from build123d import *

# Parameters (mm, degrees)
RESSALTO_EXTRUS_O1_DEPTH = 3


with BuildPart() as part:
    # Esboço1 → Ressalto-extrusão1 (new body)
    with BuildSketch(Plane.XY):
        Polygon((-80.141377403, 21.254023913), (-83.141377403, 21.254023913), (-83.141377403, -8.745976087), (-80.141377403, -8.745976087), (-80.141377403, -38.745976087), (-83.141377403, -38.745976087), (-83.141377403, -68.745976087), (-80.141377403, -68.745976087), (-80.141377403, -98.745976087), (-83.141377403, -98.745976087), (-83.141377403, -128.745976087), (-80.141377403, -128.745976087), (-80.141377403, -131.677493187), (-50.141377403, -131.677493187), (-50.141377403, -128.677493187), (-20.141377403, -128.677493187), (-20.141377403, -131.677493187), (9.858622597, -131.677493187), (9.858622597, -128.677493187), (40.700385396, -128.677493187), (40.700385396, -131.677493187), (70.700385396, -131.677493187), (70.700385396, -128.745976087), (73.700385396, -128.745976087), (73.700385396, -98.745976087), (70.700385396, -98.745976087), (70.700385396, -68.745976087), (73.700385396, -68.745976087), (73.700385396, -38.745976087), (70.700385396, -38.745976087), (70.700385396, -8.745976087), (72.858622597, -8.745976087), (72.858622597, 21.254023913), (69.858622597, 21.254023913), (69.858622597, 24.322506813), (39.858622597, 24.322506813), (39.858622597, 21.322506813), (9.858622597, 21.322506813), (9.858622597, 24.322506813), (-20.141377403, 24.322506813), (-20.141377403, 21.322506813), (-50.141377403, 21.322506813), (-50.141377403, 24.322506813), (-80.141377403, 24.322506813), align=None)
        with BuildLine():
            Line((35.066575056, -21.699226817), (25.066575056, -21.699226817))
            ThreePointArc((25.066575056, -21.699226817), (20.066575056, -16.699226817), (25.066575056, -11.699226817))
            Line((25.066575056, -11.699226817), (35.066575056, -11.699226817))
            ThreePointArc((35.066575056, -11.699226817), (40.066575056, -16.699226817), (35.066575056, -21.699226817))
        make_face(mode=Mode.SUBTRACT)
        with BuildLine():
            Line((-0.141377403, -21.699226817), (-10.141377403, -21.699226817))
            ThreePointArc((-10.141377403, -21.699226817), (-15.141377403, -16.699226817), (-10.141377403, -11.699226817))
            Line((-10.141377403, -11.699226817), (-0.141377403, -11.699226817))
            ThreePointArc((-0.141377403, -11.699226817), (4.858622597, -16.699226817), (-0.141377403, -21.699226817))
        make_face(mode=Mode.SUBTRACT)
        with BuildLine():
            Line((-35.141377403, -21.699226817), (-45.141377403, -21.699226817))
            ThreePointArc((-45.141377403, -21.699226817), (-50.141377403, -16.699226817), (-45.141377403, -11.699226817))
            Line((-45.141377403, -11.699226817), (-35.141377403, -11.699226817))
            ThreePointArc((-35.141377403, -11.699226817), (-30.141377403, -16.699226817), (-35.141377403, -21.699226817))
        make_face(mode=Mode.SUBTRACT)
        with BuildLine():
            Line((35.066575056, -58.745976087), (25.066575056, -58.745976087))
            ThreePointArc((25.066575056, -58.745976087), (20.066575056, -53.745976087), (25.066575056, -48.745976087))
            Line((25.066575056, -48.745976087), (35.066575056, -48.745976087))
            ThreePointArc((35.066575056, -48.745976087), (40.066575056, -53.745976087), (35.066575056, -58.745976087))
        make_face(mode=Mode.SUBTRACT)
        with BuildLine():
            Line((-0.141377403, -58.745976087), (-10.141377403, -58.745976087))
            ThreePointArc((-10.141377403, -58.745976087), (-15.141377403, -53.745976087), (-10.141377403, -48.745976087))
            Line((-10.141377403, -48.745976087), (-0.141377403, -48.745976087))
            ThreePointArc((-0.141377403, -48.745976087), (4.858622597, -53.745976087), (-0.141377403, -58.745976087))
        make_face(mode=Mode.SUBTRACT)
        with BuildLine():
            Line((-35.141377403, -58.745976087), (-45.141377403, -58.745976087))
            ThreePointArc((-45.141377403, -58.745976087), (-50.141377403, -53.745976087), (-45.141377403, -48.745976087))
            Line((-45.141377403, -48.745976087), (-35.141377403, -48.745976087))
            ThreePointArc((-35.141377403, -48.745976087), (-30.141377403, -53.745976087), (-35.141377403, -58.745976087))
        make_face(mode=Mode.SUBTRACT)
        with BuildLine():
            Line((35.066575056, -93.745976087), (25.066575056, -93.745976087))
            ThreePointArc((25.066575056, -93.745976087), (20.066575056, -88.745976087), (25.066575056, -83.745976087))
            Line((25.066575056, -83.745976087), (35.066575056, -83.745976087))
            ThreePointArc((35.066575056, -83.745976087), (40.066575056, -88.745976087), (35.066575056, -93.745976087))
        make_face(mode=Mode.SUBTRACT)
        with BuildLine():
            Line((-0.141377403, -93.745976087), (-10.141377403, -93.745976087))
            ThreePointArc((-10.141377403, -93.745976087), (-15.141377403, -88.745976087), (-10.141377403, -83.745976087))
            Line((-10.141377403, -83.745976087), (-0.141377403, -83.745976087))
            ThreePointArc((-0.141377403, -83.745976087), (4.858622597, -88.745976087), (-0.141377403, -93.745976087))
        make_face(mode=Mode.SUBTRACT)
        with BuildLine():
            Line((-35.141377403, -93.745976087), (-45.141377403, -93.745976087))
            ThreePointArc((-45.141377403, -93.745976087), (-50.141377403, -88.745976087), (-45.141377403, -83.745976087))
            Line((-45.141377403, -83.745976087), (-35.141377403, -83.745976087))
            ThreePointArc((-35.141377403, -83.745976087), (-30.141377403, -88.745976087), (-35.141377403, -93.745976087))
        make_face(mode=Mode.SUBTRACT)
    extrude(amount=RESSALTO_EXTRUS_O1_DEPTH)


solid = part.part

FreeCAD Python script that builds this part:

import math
import FreeCAD as App
import Part
import Sketcher
from FreeCAD import Vector
Q = App.Units.Quantity


def add_polygon(sketch, points):
    """Adds a closed chain of lines whose ends are joined by coincident constraints."""
    first, n = sketch.GeometryCount, len(points)
    for a, b in zip(points, points[1:] + points[:1]):
        sketch.addGeometry(Part.LineSegment(App.Vector(*a, 0), App.Vector(*b, 0)), False)
    for i in range(n):
        sketch.addConstraint(Sketcher.Constraint("Coincident", first + i, 2, first + (i + 1) % n, 1))

doc = App.newDocument("Part")
body = doc.addObject("PartDesign::Body", "Body")

# Sketch on XY plane
sketch1 = body.newObject("Sketcher::SketchObject", "Sketch")
sketch1.AttachmentSupport = (doc.getObject("XY_Plane"), [""])
sketch1.MapMode = "FlatFace"
add_polygon(sketch1, [(-80.1, 21.3), (-83.1, 21.3), (-83.1, -8.7), (-80.1, -8.7), (-80.1, -38.7), (-83.1, -38.7), (-83.1, -68.7), (-80.1, -68.7), (-80.1, -98.7), (-83.1, -98.7), (-83.1, -128.7), (-80.1, -128.7), (-80.1, -131.7), (-50.1, -131.7), (-50.1, -128.7), (-20.1, -128.7), (-20.1, -131.7), (9.9, -131.7), (9.9, -128.7), (40.7, -128.7), (40.7, -131.7), (70.7, -131.7), (70.7, -128.7), (73.7, -128.7), (73.7, -98.7), (70.7, -98.7), (70.7, -68.7), (73.7, -68.7), (73.7, -38.7), (70.7, -38.7), (70.7, -8.7), (72.9, -8.7), (72.9, 21.3), (69.9, 21.3), (69.9, 24.3), (39.9, 24.3), (39.9, 21.3), (9.9, 21.3), (9.9, 24.3), (-20.1, 24.3), (-20.1, 21.3), (-50.1, 21.3), (-50.1, 24.3), (-80.1, 24.3)])  # lines 0-43
sketch1.addGeometry(Part.ArcOfCircle(Part.Circle(Vector(-35.1, -88.7, 0), Vector(0, 0, 1), 5), math.radians(-90), math.radians(90)), False)  # 44
sketch1.addGeometry(Part.LineSegment(Vector(-35.1, -93.7, 0), Vector(-45.1, -93.7, 0)), False)  # 45
sketch1.addGeometry(Part.ArcOfCircle(Part.Circle(Vector(-45.1, -88.7, 0), Vector(0, 0, 1), 5), math.radians(90), math.radians(270)), False)  # 46
sketch1.addGeometry(Part.LineSegment(Vector(-45.1, -83.7, 0), Vector(-35.1, -83.7, 0)), False)  # 47
sketch1.addGeometry(Part.ArcOfCircle(Part.Circle(Vector(-0.1, -88.7, 0), Vector(0, 0, 1), 5), math.radians(-90), math.radians(90)), False)  # 48
sketch1.addGeometry(Part.LineSegment(Vector(-0.1, -93.7, 0), Vector(-10.1, -93.7, 0)), False)  # 49
sketch1.addGeometry(Part.ArcOfCircle(Part.Circle(Vector(-10.1, -88.7, 0), Vector(0, 0, 1), 5), math.radians(90), math.radians(270)), False)  # 50
sketch1.addGeometry(Part.LineSegment(Vector(-10.1, -83.7, 0), Vector(-0.1, -83.7, 0)), False)  # 51
sketch1.addGeometry(Part.ArcOfCircle(Part.Circle(Vector(-35.1, -53.7, 0), Vector(0, 0, 1), 5), math.radians(-90), math.radians(90)), False)  # 52
sketch1.addGeometry(Part.LineSegment(Vector(-35.1, -58.7, 0), Vector(-45.1, -58.7, 0)), False)  # 53
sketch1.addGeometry(Part.ArcOfCircle(Part.Circle(Vector(-45.1, -53.7, 0), Vector(0, 0, 1), 5), math.radians(90), math.radians(270)), False)  # 54
sketch1.addGeometry(Part.LineSegment(Vector(-45.1, -48.7, 0), Vector(-35.1, -48.7, 0)), False)  # 55
sketch1.addGeometry(Part.ArcOfCircle(Part.Circle(Vector(-0.1, -53.7, 0), Vector(0, 0, 1), 5), math.radians(-90), math.radians(90)), False)  # 56
sketch1.addGeometry(Part.LineSegment(Vector(-0.1, -58.7, 0), Vector(-10.1, -58.7, 0)), False)  # 57
sketch1.addGeometry(Part.ArcOfCircle(Part.Circle(Vector(-10.1, -53.7, 0), Vector(0, 0, 1), 5), math.radians(90), math.radians(270)), False)  # 58
sketch1.addGeometry(Part.LineSegment(Vector(-10.1, -48.7, 0), Vector(-0.1, -48.7, 0)), False)  # 59
sketch1.addGeometry(Part.ArcOfCircle(Part.Circle(Vector(35.1, -88.7, 0), Vector(0, 0, 1), 5), math.radians(-90), math.radians(90)), False)  # 60
sketch1.addGeometry(Part.LineSegment(Vector(35.1, -93.7, 0), Vector(25.1, -93.7, 0)), False)  # 61
sketch1.addGeometry(Part.ArcOfCircle(Part.Circle(Vector(25.1, -88.7, 0), Vector(0, 0, 1), 5), math.radians(90), math.radians(270)), False)  # 62
sketch1.addGeometry(Part.LineSegment(Vector(25.1, -83.7, 0), Vector(35.1, -83.7, 0)), False)  # 63
sketch1.addGeometry(Part.ArcOfCircle(Part.Circle(Vector(35.1, -53.7, 0), Vector(0, 0, 1), 5), math.radians(-90), math.radians(90)), False)  # 64
sketch1.addGeometry(Part.LineSegment(Vector(35.1, -58.7, 0), Vector(25.1, -58.7, 0)), False)  # 65
sketch1.addGeometry(Part.ArcOfCircle(Part.Circle(Vector(25.1, -53.7, 0), Vector(0, 0, 1), 5), math.radians(90), math.radians(270)), False)  # 66
sketch1.addGeometry(Part.LineSegment(Vector(25.1, -48.7, 0), Vector(35.1, -48.7, 0)), False)  # 67
sketch1.addGeometry(Part.ArcOfCircle(Part.Circle(Vector(-35.1, -16.7, 0), Vector(0, 0, 1), 5), math.radians(-90), math.radians(90)), False)  # 68
sketch1.addGeometry(Part.LineSegment(Vector(-35.1, -21.7, 0), Vector(-45.1, -21.7, 0)), False)  # 69
sketch1.addGeometry(Part.ArcOfCircle(Part.Circle(Vector(-45.1, -16.7, 0), Vector(0, 0, 1), 5), math.radians(90), math.radians(270)), False)  # 70
sketch1.addGeometry(Part.LineSegment(Vector(-45.1, -11.7, 0), Vector(-35.1, -11.7, 0)), False)  # 71
sketch1.addGeometry(Part.ArcOfCircle(Part.Circle(Vector(-0.1, -16.7, 0), Vector(0, 0, 1), 5), math.radians(-90), math.radians(90)), False)  # 72
sketch1.addGeometry(Part.LineSegment(Vector(-0.1, -21.7, 0), Vector(-10.1, -21.7, 0)), False)  # 73
sketch1.addGeometry(Part.ArcOfCircle(Part.Circle(Vector(-10.1, -16.7, 0), Vector(0, 0, 1), 5), math.radians(90), math.radians(270)), False)  # 74
sketch1.addGeometry(Part.LineSegment(Vector(-10.1, -11.7, 0), Vector(-0.1, -11.7, 0)), False)  # 75
sketch1.addGeometry(Part.ArcOfCircle(Part.Circle(Vector(35.1, -16.7, 0), Vector(0, 0, 1), 5), math.radians(-90), math.radians(90)), False)  # 76
sketch1.addGeometry(Part.LineSegment(Vector(35.1, -21.7, 0), Vector(25.1, -21.7, 0)), False)  # 77
sketch1.addGeometry(Part.ArcOfCircle(Part.Circle(Vector(25.1, -16.7, 0), Vector(0, 0, 1), 5), math.radians(90), math.radians(270)), False)  # 78
sketch1.addGeometry(Part.LineSegment(Vector(25.1, -11.7, 0), Vector(35.1, -11.7, 0)), False)  # 79
sketch1.addConstraint([
    Sketcher.Constraint("Tangent", 44, 1, 45, 1),
    Sketcher.Constraint("Tangent", 45, 2, 46, 2),
    Sketcher.Constraint("Tangent", 46, 1, 47, 1),
    Sketcher.Constraint("Tangent", 47, 2, 44, 2),
    Sketcher.Constraint("Tangent", 48, 1, 49, 1),
    Sketcher.Constraint("Tangent", 49, 2, 50, 2),
    Sketcher.Constraint("Tangent", 50, 1, 51, 1),
    Sketcher.Constraint("Tangent", 51, 2, 48, 2),
    Sketcher.Constraint("Tangent", 52, 1, 53, 1),
    Sketcher.Constraint("Tangent", 53, 2, 54, 2),
    Sketcher.Constraint("Tangent", 54, 1, 55, 1),
    Sketcher.Constraint("Tangent", 55, 2, 52, 2),
    Sketcher.Constraint("Tangent", 56, 1, 57, 1),
    Sketcher.Constraint("Tangent", 57, 2, 58, 2),
    Sketcher.Constraint("Tangent", 58, 1, 59, 1),
    Sketcher.Constraint("Tangent", 59, 2, 56, 2),
    Sketcher.Constraint("Tangent", 60, 1, 61, 1),
    Sketcher.Constraint("Tangent", 61, 2, 62, 2),
    Sketcher.Constraint("Tangent", 62, 1, 63, 1),
    Sketcher.Constraint("Tangent", 63, 2, 60, 2),
    Sketcher.Constraint("Tangent", 64, 1, 65, 1),
    Sketcher.Constraint("Tangent", 65, 2, 66, 2),
    Sketcher.Constraint("Tangent", 66, 1, 67, 1),
    Sketcher.Constraint("Tangent", 67, 2, 64, 2),
    Sketcher.Constraint("Tangent", 68, 1, 69, 1),
    Sketcher.Constraint("Tangent", 69, 2, 70, 2),
    Sketcher.Constraint("Tangent", 70, 1, 71, 1),
    Sketcher.Constraint("Tangent", 71, 2, 68, 2),
    Sketcher.Constraint("Tangent", 72, 1, 73, 1),
    Sketcher.Constraint("Tangent", 73, 2, 74, 2),
    Sketcher.Constraint("Tangent", 74, 1, 75, 1),
    Sketcher.Constraint("Tangent", 75, 2, 72, 2),
    Sketcher.Constraint("Tangent", 76, 1, 77, 1),
    Sketcher.Constraint("Tangent", 77, 2, 78, 2),
    Sketcher.Constraint("Tangent", 78, 1, 79, 1),
    Sketcher.Constraint("Tangent", 79, 2, 76, 2),
    Sketcher.Constraint("Horizontal", 0),
    Sketcher.Constraint("Vertical", 1),
    Sketcher.Constraint("Horizontal", 2),
    Sketcher.Constraint("Vertical", 3),
    Sketcher.Constraint("Horizontal", 4),
    Sketcher.Constraint("Vertical", 5),
    Sketcher.Constraint("Horizontal", 6),
    Sketcher.Constraint("Vertical", 7),
    Sketcher.Constraint("Horizontal", 8),
    Sketcher.Constraint("Vertical", 9),
    Sketcher.Constraint("Horizontal", 10),
    Sketcher.Constraint("Vertical", 11),
    Sketcher.Constraint("Horizontal", 12),
    Sketcher.Constraint("Vertical", 13),
    Sketcher.Constraint("Horizontal", 14),
    Sketcher.Constraint("Vertical", 15),
    Sketcher.Constraint("Horizontal", 16),
    Sketcher.Constraint("Vertical", 17),
    Sketcher.Constraint("Horizontal", 18),
    Sketcher.Constraint("Vertical", 19),
    Sketcher.Constraint("Horizontal", 20),
    Sketcher.Constraint("Vertical", 21),
    Sketcher.Constraint("Horizontal", 22),
    Sketcher.Constraint("Vertical", 23),
    Sketcher.Constraint("Horizontal", 24),
    Sketcher.Constraint("Vertical", 25),
    Sketcher.Constraint("Horizontal", 26),
    Sketcher.Constraint("Vertical", 27),
    Sketcher.Constraint("Horizontal", 28),
    Sketcher.Constraint("Vertical", 29),
    Sketcher.Constraint("Horizontal", 30),
    Sketcher.Constraint("Vertical", 31),
    Sketcher.Constraint("Horizontal", 32),
    Sketcher.Constraint("Vertical", 33),
    Sketcher.Constraint("Horizontal", 34),
    Sketcher.Constraint("Vertical", 35),
    Sketcher.Constraint("Horizontal", 36),
    Sketcher.Constraint("Vertical", 37),
    Sketcher.Constraint("Horizontal", 38),
    Sketcher.Constraint("Vertical", 39),
    Sketcher.Constraint("Horizontal", 40),
    Sketcher.Constraint("Vertical", 41),
    Sketcher.Constraint("Horizontal", 42),
    Sketcher.Constraint("Vertical", 43),
    Sketcher.Constraint("Horizontal", 45),
    Sketcher.Constraint("Horizontal", 47),
    Sketcher.Constraint("Horizontal", 49),
    Sketcher.Constraint("Horizontal", 51),
    Sketcher.Constraint("Horizontal", 53),
    Sketcher.Constraint("Horizontal", 55),
    Sketcher.Constraint("Horizontal", 57),
    Sketcher.Constraint("Horizontal", 59),
    Sketcher.Constraint("Horizontal", 61),
    Sketcher.Constraint("Horizontal", 63),
    Sketcher.Constraint("Horizontal", 65),
    Sketcher.Constraint("Horizontal", 67),
    Sketcher.Constraint("Horizontal", 69),
    Sketcher.Constraint("Horizontal", 71),
    Sketcher.Constraint("Horizontal", 73),
    Sketcher.Constraint("Horizontal", 75),
    Sketcher.Constraint("Horizontal", 77),
    Sketcher.Constraint("Horizontal", 79),
    Sketcher.Constraint("Equal", 46, 48),
    Sketcher.Constraint("Equal", 50, 52),
    Sketcher.Constraint("Equal", 54, 56),
    Sketcher.Constraint("Equal", 58, 60),
    Sketcher.Constraint("Equal", 62, 64),
    Sketcher.Constraint("Equal", 66, 68),
    Sketcher.Constraint("Equal", 70, 72),
    Sketcher.Constraint("Equal", 74, 76),
    Sketcher.Constraint("Horizontal", 46, 3, 48, 3),
    Sketcher.Constraint("Horizontal", 54, 3, 56, 3),
    Sketcher.Constraint("Horizontal", 50, 3, 60, 3),
    Sketcher.Constraint("Horizontal", 58, 3, 64, 3),
    Sketcher.Constraint("Horizontal", 70, 3, 72, 3),
    Sketcher.Constraint("Horizontal", 74, 3, 76, 3),
    Sketcher.Constraint("Horizontal", 12, 2, 15, 2),
    Sketcher.Constraint("Horizontal", 14, 2, 17, 2),
    Sketcher.Constraint("Horizontal", 16, 2, 19, 2),
    Sketcher.Constraint("Horizontal", 10, 2, 21, 2),
    Sketcher.Constraint("Horizontal", 8, 2, 23, 2),
    Sketcher.Constraint("Horizontal", 6, 2, 25, 2),
    Sketcher.Constraint("Horizontal", 4, 2, 27, 2),
    Sketcher.Constraint("Horizontal", 2, 2, 29, 2),
    Sketcher.Constraint("Horizontal", 0, 2, 31, 2),
    Sketcher.Constraint("Horizontal", 34, 2, 37, 2),
    Sketcher.Constraint("Horizontal", 36, 2, 39, 2),
    Sketcher.Constraint("Horizontal", 38, 2, 41, 2),
    Sketcher.Constraint("Vertical", 44, 3, 52, 3),
    Sketcher.Constraint("Vertical", 46, 3, 54, 3),
    Sketcher.Constraint("Vertical", 48, 3, 56, 3),
    Sketcher.Constraint("Vertical", 50, 3, 58, 3),
    Sketcher.Constraint("Vertical", 60, 3, 64, 3),
    Sketcher.Constraint("Vertical", 62, 3, 66, 3),
    Sketcher.Constraint("Vertical", 52, 3, 68, 3),
    Sketcher.Constraint("Vertical", 54, 3, 70, 3),
    Sketcher.Constraint("Vertical", 56, 3, 72, 3),
    Sketcher.Constraint("Vertical", 58, 3, 74, 3),
    Sketcher.Constraint("Vertical", 64, 3, 76, 3),
    Sketcher.Constraint("Vertical", 66, 3, 78, 3),
    Sketcher.Constraint("Vertical", 1, 2, 4, 2),
    Sketcher.Constraint("Vertical", 3, 2, 6, 2),
    Sketcher.Constraint("Vertical", 5, 2, 8, 2),
    Sketcher.Constraint("Vertical", 7, 2, 10, 2),
    Sketcher.Constraint("Vertical", 21, 2, 24, 2),
    Sketcher.Constraint("Vertical", 23, 2, 26, 2),
    Sketcher.Constraint("Vertical", 25, 2, 28, 2),
    Sketcher.Constraint("Vertical", 17, 2, 36, 2),
    Sketcher.Constraint("Vertical", 15, 2, 38, 2),
    Sketcher.Constraint("Vertical", 13, 2, 40, 2),
    Sketcher.Constraint("Vertical", 11, 2, 42, 2),
    Sketcher.Constraint("Equal", 12, 14),
    Sketcher.Constraint("Equal", 14, 16),
    Sketcher.Constraint("Equal", 16, 20),
    Sketcher.Constraint("Equal", 10, 22),
    Sketcher.Constraint("Equal", 28, 32),
    Sketcher.Constraint("Equal", 20, 34),
    Sketcher.Constraint("Equal", 34, 36),
    Sketcher.Constraint("Equal", 47, 49),
    Sketcher.Constraint("Equal", 59, 61),
    Sketcher.Constraint("Equal", 42, 1),
    Sketcher.Constraint("Equal", 1, 3),
    Sketcher.Constraint("Equal", 3, 5),
    Sketcher.Constraint("Equal", 5, 7),
    Sketcher.Constraint("Equal", 7, 9),
    Sketcher.Constraint("Equal", 32, 13),
    Sketcher.Constraint("Equal", 19, 35),
    Sketcher.Constraint("Radius", 44, Q("5 mm")),
    Sketcher.Constraint("DistanceX", 0, 2, 0, 1, Q("3 mm")),
    Sketcher.Constraint("DistanceX", 12, 1, 12, 2, Q("30 mm")),
    Sketcher.Constraint("DistanceX", 45, 2, 45, 1, Q("10 mm")),
    Sketcher.Constraint("DistanceX", 18, 1, 18, 2, Q("30.841763 mm")),
    Sketcher.Constraint("DistanceY", 11, 2, 11, 1, Q("2.931517 mm")),
    Sketcher.Constraint("DistanceY", 33, 1, 33, 2, Q("3.068483 mm")),
    Sketcher.Constraint("DistanceX", 44, 3, -1, 1, Q("35.141377 mm")),
    Sketcher.Constraint("DistanceY", 44, 3, -1, 1, Q("88.745976 mm")),
    Sketcher.Constraint("DistanceX", 48, 3, -1, 1, Q("0.141377 mm")),
    Sketcher.Constraint("DistanceY", 52, 3, -1, 1, Q("53.745976 mm")),
    Sketcher.Constraint("DistanceX", -1, 1, 60, 3, Q("35.066575 mm")),
    Sketcher.Constraint("DistanceY", 68, 3, -1, 1, Q("16.699227 mm")),
    Sketcher.Constraint("DistanceX", 0, 2, -1, 1, Q("83.141377 mm")),
    Sketcher.Constraint("DistanceY", -1, 1, 0, 2, Q("21.254024 mm")),
])
pad1 = body.newObject("PartDesign::Pad", "Pad")
pad1.Profile = sketch1
pad1.Length = 3

doc.recompute()
